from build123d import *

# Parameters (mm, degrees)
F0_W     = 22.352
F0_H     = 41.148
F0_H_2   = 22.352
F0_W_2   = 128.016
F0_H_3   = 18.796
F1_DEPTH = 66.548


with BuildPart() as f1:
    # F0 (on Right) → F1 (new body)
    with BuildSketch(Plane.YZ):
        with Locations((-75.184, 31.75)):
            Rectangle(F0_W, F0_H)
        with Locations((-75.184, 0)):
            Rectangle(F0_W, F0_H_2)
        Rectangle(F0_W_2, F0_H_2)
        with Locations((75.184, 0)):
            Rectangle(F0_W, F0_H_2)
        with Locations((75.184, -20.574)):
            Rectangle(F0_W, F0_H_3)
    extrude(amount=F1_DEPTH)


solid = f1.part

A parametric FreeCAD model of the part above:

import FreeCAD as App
import Part
import Sketcher

V = App.Vector
Q = App.Units.Quantity


def add_polygon(sketch, points):
    """Adds a closed chain of lines whose ends are joined by coincident constraints."""
    first, n = sketch.GeometryCount, len(points)
    for a, b in zip(points, points[1:] + points[:1]):
        sketch.addGeometry(Part.LineSegment(App.Vector(*a, 0), App.Vector(*b, 0)), False)
    for i in range(n):
        sketch.addConstraint(Sketcher.Constraint("Coincident", first + i, 2, first + (i + 1) % n, 1))

doc = App.newDocument("Part")
params = doc.addObject("Spreadsheet::Sheet", "Params")
for row, (alias, value) in enumerate([
    ("sketch1_height", "2.5 in"),
    ("sketch1_width", "5.92 in"),
    ("sketch1_width2", "0.88 in"),
    ("sketch1_height2", "0.74 in"),
    ("pad1_length", "2.62 in"),
], start=1):
    params.set(f"A{row}", alias)
    params.set(f"B{row}", "=" + value)
    params.setAlias(f"B{row}", alias)

body = doc.addObject("PartDesign::Body", "Body")

# Sketch on YZ plane
sketch1 = doc.addObject("Sketcher::SketchObject", "Sketch")
body.addObject(sketch1)
sketch1.AttachmentSupport = (doc.YZ_Plane, [""])
sketch1.MapMode = "FlatFace"
add_polygon(sketch1, [(-86, 52), (-86, -11), (64, -11), (64, -30), (86, -30), (86, 11), (-64, 11), (-64, 52)])  # lines 0-7
sketch1.addConstraint([
    Sketcher.Constraint("Vertical", 0),
    Sketcher.Constraint("Horizontal", 1),
    Sketcher.Constraint("Vertical", 2),
    Sketcher.Constraint("Horizontal", 3),
    Sketcher.Constraint("Vertical", 4),
    Sketcher.Constraint("Horizontal", 5),
    Sketcher.Constraint("Vertical", 6),
    Sketcher.Constraint("Horizontal", 7),
    Sketcher.Constraint("Symmetric", 0, 2, 4, 2, -1, 1),
    Sketcher.Constraint("Equal", 1, 5),
    Sketcher.Constraint("Equal", 4, 6),
    Sketcher.Constraint("DistanceY", 0, 2, 0, 1, Q("2.5 in")),
    Sketcher.Constraint("DistanceX", 1, 1, 1, 2, Q("5.92 in")),
    Sketcher.Constraint("DistanceX", 3, 1, 3, 2, Q("0.88 in")),
    Sketcher.Constraint("DistanceY", 2, 2, 2, 1, Q("0.74 in")),
])
sketch1.setExpression("Constraints[19]", "Params.sketch1_height")
sketch1.setExpression("Constraints[20]", "Params.sketch1_width")
sketch1.setExpression("Constraints[21]", "Params.sketch1_width2")
sketch1.setExpression("Constraints[22]", "Params.sketch1_height2")
pad1 = doc.addObject("PartDesign::Pad", "Pad")
body.addObject(pad1)
pad1.Profile = sketch1
pad1.setExpression("Length", "Params.pad1_length")

doc.recompute()
